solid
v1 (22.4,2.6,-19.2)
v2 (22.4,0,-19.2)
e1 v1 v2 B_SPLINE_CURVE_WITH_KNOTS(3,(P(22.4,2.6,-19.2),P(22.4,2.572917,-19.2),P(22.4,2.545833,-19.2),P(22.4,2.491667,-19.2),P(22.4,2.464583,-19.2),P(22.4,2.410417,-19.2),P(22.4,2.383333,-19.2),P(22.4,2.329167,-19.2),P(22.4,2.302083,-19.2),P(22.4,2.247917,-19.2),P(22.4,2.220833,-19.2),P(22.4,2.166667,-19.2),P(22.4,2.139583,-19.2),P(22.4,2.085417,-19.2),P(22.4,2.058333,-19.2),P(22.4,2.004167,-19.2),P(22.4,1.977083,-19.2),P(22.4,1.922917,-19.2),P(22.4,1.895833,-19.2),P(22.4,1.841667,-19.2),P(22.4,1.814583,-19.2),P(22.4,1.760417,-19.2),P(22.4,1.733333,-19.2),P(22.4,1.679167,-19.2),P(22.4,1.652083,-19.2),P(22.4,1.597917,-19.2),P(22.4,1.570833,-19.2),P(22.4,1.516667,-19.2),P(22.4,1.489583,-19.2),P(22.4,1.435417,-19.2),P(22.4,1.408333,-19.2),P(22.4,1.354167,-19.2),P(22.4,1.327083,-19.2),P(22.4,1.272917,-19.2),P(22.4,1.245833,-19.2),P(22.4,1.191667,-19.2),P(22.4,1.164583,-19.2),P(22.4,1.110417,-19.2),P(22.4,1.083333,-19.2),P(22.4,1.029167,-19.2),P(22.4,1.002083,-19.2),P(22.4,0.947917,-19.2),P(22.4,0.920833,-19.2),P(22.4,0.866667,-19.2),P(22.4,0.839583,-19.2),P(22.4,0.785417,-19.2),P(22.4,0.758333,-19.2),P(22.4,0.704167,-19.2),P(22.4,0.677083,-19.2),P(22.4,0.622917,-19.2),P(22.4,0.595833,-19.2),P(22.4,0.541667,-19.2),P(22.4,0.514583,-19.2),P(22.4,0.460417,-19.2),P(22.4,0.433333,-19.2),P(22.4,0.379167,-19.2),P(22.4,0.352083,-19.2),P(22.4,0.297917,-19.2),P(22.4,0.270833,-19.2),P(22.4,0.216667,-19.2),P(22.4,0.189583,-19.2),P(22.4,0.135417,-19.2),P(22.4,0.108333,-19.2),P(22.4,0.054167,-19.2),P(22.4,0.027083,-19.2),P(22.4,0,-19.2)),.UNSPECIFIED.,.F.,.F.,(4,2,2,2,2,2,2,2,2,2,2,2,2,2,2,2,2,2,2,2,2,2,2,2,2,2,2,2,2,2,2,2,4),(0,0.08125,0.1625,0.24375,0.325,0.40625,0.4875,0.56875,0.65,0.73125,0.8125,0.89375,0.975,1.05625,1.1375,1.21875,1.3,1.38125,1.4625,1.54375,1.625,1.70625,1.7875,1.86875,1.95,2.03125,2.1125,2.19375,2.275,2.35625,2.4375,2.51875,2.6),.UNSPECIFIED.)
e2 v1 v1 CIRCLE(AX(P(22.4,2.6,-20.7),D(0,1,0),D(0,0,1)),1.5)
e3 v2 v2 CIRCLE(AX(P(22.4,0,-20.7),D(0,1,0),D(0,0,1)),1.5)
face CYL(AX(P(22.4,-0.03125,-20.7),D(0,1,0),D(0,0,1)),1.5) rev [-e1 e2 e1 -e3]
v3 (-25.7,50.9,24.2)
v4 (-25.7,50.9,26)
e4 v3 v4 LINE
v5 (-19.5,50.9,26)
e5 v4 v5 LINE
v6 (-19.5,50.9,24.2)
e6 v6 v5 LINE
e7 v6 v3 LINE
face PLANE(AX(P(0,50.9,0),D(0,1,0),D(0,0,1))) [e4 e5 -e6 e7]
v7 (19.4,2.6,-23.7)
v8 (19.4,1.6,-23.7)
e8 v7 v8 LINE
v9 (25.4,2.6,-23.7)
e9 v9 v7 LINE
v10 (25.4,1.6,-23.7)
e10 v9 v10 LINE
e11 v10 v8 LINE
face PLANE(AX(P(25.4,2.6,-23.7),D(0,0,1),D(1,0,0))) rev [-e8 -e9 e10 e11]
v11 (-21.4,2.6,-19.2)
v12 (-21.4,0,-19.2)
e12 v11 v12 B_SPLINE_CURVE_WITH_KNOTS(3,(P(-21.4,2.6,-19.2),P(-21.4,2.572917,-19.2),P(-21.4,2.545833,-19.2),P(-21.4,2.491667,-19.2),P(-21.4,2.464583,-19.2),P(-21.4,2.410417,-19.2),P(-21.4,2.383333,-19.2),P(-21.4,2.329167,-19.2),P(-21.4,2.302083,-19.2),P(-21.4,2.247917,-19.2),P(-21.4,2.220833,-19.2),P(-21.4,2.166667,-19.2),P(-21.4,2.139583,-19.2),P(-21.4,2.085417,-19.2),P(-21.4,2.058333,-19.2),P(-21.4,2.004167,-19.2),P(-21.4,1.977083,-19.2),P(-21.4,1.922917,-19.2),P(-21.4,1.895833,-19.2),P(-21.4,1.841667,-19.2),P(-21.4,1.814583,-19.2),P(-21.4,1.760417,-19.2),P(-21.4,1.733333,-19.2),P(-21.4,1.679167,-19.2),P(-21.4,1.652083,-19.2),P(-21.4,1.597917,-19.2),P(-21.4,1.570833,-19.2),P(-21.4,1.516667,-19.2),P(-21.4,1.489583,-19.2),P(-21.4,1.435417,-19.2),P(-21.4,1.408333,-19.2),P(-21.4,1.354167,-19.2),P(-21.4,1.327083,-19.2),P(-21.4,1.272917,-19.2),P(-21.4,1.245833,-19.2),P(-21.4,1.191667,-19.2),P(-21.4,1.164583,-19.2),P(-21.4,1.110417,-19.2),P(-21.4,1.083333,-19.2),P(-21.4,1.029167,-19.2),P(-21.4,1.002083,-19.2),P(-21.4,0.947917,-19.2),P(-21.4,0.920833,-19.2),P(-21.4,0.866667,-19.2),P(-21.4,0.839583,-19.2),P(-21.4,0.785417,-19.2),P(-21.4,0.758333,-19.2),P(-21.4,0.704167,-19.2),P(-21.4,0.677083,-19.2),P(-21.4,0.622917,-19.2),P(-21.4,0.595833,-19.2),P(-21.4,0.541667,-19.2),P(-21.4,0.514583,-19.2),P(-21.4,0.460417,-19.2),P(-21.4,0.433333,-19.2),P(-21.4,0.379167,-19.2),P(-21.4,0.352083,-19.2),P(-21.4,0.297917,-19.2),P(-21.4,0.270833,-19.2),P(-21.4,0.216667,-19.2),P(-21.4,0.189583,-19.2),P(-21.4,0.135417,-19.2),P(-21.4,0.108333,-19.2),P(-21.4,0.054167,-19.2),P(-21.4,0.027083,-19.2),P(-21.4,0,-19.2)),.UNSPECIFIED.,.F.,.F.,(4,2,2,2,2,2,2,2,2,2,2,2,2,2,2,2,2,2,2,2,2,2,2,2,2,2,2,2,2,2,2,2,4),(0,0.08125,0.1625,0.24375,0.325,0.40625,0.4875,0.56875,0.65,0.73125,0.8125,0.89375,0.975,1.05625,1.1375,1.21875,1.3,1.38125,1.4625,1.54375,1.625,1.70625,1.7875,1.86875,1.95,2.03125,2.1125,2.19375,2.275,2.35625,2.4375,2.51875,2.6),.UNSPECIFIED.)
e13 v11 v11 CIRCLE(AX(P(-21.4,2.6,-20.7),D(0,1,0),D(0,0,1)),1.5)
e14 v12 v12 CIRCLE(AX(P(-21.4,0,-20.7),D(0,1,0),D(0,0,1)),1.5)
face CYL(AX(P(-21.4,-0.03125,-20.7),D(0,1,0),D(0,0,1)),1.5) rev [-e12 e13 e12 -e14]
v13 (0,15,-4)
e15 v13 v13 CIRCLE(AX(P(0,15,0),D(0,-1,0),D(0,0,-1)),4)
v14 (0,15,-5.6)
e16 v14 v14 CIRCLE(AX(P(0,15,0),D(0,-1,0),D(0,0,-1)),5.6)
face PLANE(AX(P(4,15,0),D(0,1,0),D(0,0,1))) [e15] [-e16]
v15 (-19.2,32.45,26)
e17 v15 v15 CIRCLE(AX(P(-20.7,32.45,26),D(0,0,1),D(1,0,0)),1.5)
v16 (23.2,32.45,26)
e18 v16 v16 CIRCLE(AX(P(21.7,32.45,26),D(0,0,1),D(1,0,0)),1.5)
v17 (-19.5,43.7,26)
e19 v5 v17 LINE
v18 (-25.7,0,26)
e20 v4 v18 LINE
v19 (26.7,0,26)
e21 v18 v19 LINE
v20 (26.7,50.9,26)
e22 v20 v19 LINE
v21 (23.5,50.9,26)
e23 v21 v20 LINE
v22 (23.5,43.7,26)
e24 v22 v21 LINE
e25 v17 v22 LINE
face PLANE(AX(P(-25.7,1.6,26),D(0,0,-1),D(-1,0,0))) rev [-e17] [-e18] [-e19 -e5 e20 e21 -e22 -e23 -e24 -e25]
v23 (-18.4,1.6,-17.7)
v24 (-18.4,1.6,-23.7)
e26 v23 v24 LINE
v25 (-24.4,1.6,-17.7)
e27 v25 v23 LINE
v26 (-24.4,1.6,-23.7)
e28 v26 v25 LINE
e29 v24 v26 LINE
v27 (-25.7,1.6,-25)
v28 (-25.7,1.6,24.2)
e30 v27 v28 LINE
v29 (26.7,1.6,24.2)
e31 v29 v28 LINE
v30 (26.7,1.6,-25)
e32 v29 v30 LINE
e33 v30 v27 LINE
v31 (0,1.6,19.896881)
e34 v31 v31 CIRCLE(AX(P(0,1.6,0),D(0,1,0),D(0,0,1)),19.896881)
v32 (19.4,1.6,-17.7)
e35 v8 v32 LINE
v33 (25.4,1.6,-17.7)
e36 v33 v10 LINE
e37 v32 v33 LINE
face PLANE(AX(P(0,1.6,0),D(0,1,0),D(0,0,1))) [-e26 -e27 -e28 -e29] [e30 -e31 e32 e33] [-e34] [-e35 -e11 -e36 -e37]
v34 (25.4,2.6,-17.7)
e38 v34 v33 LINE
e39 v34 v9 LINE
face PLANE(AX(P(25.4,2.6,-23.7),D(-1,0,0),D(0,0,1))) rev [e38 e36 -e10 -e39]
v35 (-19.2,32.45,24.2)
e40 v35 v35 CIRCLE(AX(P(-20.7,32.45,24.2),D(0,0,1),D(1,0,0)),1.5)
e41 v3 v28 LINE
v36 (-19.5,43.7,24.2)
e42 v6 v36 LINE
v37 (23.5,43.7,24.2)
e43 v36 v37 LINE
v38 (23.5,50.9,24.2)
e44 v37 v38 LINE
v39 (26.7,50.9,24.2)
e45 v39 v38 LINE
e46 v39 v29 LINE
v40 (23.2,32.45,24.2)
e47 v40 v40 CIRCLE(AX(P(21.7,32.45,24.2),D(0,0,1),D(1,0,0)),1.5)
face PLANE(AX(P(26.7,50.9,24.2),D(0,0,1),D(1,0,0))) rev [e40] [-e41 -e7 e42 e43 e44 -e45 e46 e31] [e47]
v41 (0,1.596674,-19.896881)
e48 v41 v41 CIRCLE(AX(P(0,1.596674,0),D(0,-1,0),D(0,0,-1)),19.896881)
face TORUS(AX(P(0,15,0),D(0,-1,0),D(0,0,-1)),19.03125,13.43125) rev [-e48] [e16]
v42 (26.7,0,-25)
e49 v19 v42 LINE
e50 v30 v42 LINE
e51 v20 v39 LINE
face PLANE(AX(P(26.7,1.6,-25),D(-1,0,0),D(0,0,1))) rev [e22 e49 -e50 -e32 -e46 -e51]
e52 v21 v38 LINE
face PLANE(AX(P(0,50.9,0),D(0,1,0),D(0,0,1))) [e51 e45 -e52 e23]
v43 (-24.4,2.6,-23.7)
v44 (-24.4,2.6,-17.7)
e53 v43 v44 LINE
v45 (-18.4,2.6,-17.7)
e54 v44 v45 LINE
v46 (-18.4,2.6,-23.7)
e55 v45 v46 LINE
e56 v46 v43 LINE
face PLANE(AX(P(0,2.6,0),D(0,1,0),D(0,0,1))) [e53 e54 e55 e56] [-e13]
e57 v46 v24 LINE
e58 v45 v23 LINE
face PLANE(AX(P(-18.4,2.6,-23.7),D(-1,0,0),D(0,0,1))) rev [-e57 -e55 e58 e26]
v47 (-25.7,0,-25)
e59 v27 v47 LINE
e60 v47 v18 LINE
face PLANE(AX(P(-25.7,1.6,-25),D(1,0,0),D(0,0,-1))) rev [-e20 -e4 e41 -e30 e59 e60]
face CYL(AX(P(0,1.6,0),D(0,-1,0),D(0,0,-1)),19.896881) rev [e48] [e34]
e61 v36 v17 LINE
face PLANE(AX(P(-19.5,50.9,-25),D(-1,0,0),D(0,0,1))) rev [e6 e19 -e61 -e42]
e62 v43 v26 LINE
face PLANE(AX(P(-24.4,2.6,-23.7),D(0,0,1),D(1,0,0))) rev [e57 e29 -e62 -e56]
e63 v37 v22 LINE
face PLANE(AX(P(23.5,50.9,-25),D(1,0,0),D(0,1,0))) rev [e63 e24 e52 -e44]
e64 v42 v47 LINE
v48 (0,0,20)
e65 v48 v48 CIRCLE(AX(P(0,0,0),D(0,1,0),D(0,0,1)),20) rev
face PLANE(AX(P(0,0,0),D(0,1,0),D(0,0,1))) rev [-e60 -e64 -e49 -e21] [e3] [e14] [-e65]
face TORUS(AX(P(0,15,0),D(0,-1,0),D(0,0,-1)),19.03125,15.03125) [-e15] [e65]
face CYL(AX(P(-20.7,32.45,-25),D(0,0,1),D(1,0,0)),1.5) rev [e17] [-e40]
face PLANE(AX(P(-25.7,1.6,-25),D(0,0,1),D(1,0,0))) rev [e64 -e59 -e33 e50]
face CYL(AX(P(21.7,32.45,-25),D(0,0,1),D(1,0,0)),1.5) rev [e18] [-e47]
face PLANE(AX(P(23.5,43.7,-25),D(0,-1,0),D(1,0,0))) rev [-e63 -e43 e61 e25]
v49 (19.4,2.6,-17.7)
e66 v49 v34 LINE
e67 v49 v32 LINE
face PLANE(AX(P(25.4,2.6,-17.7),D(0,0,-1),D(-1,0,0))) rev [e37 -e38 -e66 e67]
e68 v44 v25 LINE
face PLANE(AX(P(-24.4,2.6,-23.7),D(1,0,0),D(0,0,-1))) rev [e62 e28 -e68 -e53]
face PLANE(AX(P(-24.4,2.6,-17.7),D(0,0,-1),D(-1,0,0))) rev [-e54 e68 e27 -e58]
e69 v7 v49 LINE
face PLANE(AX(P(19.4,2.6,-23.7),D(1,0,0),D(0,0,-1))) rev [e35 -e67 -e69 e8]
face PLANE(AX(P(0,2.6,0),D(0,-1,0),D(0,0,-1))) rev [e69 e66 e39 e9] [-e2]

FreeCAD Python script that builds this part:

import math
import FreeCAD as App
import Part
import Sketcher

doc = App.newDocument("Part")
params = doc.addObject("Spreadsheet::Sheet", "Params")
for row, (alias, value) in enumerate([
    ("sketch1_width", "1.6 mm"),
    ("revolution_angle", "360 deg"),
    ("sketch2_height", "51 mm"),
    ("sketch2_width", "52.4 mm"),
    ("pad1_length", "1.6 mm"),
    ("sketch3_width", "52.4 mm"),
    ("sketch3_height", "1.8 mm"),
    ("pad2_length", "49.3 mm"),
    ("sketch4_width", "6 mm"),
    ("pad3_length", "1 mm"),
    ("sketch5_diameter", "3 mm"),
    ("sketch6_diameter", "3 mm"),
    ("sketch6_width", "43 mm"),
    ("sketch6_height", "7.2 mm"),
], start=1):
    params.set(f"A{row}", alias)
    params.set(f"B{row}", "=" + value)
    params.setAlias(f"B{row}", alias)

body = doc.addObject("PartDesign::Body", "Body")

# Sketch on XY plane
sketch1 = body.newObject("Sketcher::SketchObject", "Sketch")
sketch1.AttachmentSupport = (doc.getObject("XY_Plane"), [""])
sketch1.MapMode = "FlatFace"
sketch1.addGeometry([
    Part.LineSegment(App.Vector(5.6, 15, 0), App.Vector(4, 15, 0)),
    Part.ArcOfCircle(Part.Circle(App.Vector(19.03125, 15, 0), App.Vector(0, 0, 1), 15.03125), math.radians(180), math.radians(273.695221)),
    Part.LineSegment(App.Vector(20, 0, 0), App.Vector(19.896881, 1.596674, 0)),
    Part.ArcOfCircle(Part.Circle(App.Vector(19.03125, 15, 0), App.Vector(0, 0, 1), 13.43125), math.radians(180), math.radians(273.695221)),
], False)
sketch1.addConstraint([
    Sketcher.Constraint("Coincident", 0, 2, 1, 1),
    Sketcher.Constraint("Coincident", 1, 2, 2, 1),
    Sketcher.Constraint("Coincident", 2, 2, 3, 2),
    Sketcher.Constraint("Coincident", 3, 1, 0, 1),
    Sketcher.Constraint("Horizontal", 0),
    Sketcher.Constraint("Coincident", 3, 3, 1, 3),
    Sketcher.Constraint("PointOnObject", 1, 2, -1),
    Sketcher.Constraint("Horizontal", 3, 3, 0, 2),
    Sketcher.Constraint("DistanceX", 0, 2, 0, 1, 1.6),
    Sketcher.Constraint("DistanceY", -1, 1, 1, 3, 15.0),
    Sketcher.Constraint("DistanceX", -1, 1, 0, 2, 4.0),
    Sketcher.Constraint("DistanceX", -1, 1, 1, 2, 20.0),
    Sketcher.Constraint("DistanceX", -1, 1, 2, 2, 19.896881),
])
sketch1.setExpression("Constraints[8]", "Params.sketch1_width")
revolution = body.newObject("PartDesign::Revolution", "Revolution")
revolution.Profile = sketch1
revolution.ReferenceAxis = (sketch1, ["V_Axis"])
revolution.setExpression("Angle", "Params.revolution_angle")

# Sketch on XZ plane
sketch2 = body.newObject("Sketcher::SketchObject", "Sketch001")
sketch2.AttachmentSupport = (doc.getObject("XZ_Plane"), [""])
sketch2.MapMode = "FlatFace"
sketch2.addGeometry([
    Part.LineSegment(App.Vector(-25.7, -25, 0), App.Vector(-25.7, 26, 0)),  # 0
    Part.LineSegment(App.Vector(-25.7, 26, 0), App.Vector(26.7, 26, 0)),  # 1
    Part.LineSegment(App.Vector(26.7, 26, 0), App.Vector(26.7, -25, 0)),  # 2
    Part.LineSegment(App.Vector(26.7, -25, 0), App.Vector(-25.7, -25, 0)),  # 3
    Part.Circle(App.Vector(0, 0, 0), App.Vector(0, 0, 1), 19.896881),  # 4
], False)
sketch2.addConstraint([
    Sketcher.Constraint("Coincident", 0, 2, 1, 1),
    Sketcher.Constraint("Coincident", 1, 2, 2, 1),
    Sketcher.Constraint("Coincident", 2, 2, 3, 1),
    Sketcher.Constraint("Coincident", 3, 2, 0, 1),
    Sketcher.Constraint("Vertical", 0),
    Sketcher.Constraint("Horizontal", 1),
    Sketcher.Constraint("Vertical", 2),
    Sketcher.Constraint("Horizontal", 3),
    Sketcher.Constraint("Coincident", 4, 3, -1, 1),
    Sketcher.Constraint("DistanceY", 0, 1, 0, 2, 51.0),
    Sketcher.Constraint("DistanceX", 1, 1, 1, 2, 52.4),
    Sketcher.Constraint("DistanceY", -1, 1, 0, 2, 26.0),
    Sketcher.Constraint("DistanceX", 0, 2, -1, 1, 25.7),
    Sketcher.Constraint("Diameter", 4, 39.793763),
])
sketch2.setExpression("Constraints[9]", "Params.sketch2_height")
sketch2.setExpression("Constraints[10]", "Params.sketch2_width")
pad1 = body.newObject("PartDesign::Pad", "Pad")
pad1.Profile = sketch2
pad1.setExpression("Length", "Params.pad1_length")
pad1.Reversed = True

# Sketch on XZ plane
sketch3 = body.newObject("Sketcher::SketchObject", "Sketch002")
sketch3.AttachmentSupport = (doc.getObject("XZ_Plane"), [""])
sketch3.MapMode = "FlatFace"
sketch3.AttachmentOffset = App.Placement(App.Vector(0, 0, -1.6), App.Rotation())
sketch3.addGeometry([
    Part.LineSegment(App.Vector(-25.7, 24.2, 0), App.Vector(-25.7, 26, 0)),
    Part.LineSegment(App.Vector(-25.7, 26, 0), App.Vector(26.7, 26, 0)),
    Part.LineSegment(App.Vector(26.7, 26, 0), App.Vector(26.7, 24.2, 0)),
    Part.LineSegment(App.Vector(26.7, 24.2, 0), App.Vector(-25.7, 24.2, 0)),
], False)
sketch3.addConstraint([
    Sketcher.Constraint("Coincident", 0, 2, 1, 1),
    Sketcher.Constraint("Coincident", 1, 2, 2, 1),
    Sketcher.Constraint("Coincident", 2, 2, 3, 1),
    Sketcher.Constraint("Coincident", 3, 2, 0, 1),
    Sketcher.Constraint("Vertical", 0),
    Sketcher.Constraint("Horizontal", 1),
    Sketcher.Constraint("Vertical", 2),
    Sketcher.Constraint("Horizontal", 3),
    Sketcher.Constraint("DistanceX", 1, 1, 1, 2, 52.4),
    Sketcher.Constraint("DistanceY", 0, 1, 0, 2, 1.8),
    Sketcher.Constraint("DistanceY", -1, 1, 0, 2, 26.0),
    Sketcher.Constraint("DistanceX", 0, 2, -1, 1, 25.7),
])
sketch3.setExpression("Constraints[8]", "Params.sketch3_width")
sketch3.setExpression("Constraints[9]", "Params.sketch3_height")
pad2 = body.newObject("PartDesign::Pad", "Pad001")
pad2.Profile = sketch3
pad2.setExpression("Length", "Params.pad2_length")
pad2.Reversed = True

# Sketch on XZ plane
sketch4 = body.newObject("Sketcher::SketchObject", "Sketch003")
sketch4.AttachmentSupport = (doc.getObject("XZ_Plane"), [""])
sketch4.MapMode = "FlatFace"
sketch4.AttachmentOffset = App.Placement(App.Vector(0, 0, -1.6), App.Rotation())
sketch4.addGeometry([
    Part.LineSegment(App.Vector(19.4, -23.7, 0), App.Vector(19.4, -17.7, 0)),  # 0
    Part.LineSegment(App.Vector(19.4, -17.7, 0), App.Vector(25.4, -17.7, 0)),  # 1
    Part.LineSegment(App.Vector(25.4, -17.7, 0), App.Vector(25.4, -23.7, 0)),  # 2
    Part.LineSegment(App.Vector(25.4, -23.7, 0), App.Vector(19.4, -23.7, 0)),  # 3
    Part.LineSegment(App.Vector(-24.4, -23.7, 0), App.Vector(-24.4, -17.7, 0)),  # 4
    Part.LineSegment(App.Vector(-24.4, -17.7, 0), App.Vector(-18.4, -17.7, 0)),  # 5
    Part.LineSegment(App.Vector(-18.4, -17.7, 0), App.Vector(-18.4, -23.7, 0)),  # 6
    Part.LineSegment(App.Vector(-18.4, -23.7, 0), App.Vector(-24.4, -23.7, 0)),  # 7
], False)
sketch4.addConstraint([
    Sketcher.Constraint("Coincident", 0, 2, 1, 1),
    Sketcher.Constraint("Coincident", 1, 2, 2, 1),
    Sketcher.Constraint("Coincident", 2, 2, 3, 1),
    Sketcher.Constraint("Coincident", 3, 2, 0, 1),
    Sketcher.Constraint("Coincident", 4, 2, 5, 1),
    Sketcher.Constraint("Coincident", 5, 2, 6, 1),
    Sketcher.Constraint("Coincident", 6, 2, 7, 1),
    Sketcher.Constraint("Coincident", 7, 2, 4, 1),
    Sketcher.Constraint("Vertical", 0),
    Sketcher.Constraint("Horizontal", 1),
    Sketcher.Constraint("Vertical", 2),
    Sketcher.Constraint("Horizontal", 3),
    Sketcher.Constraint("Vertical", 4),
    Sketcher.Constraint("Horizontal", 5),
    Sketcher.Constraint("Vertical", 6),
    Sketcher.Constraint("Horizontal", 7),
    Sketcher.Constraint("Horizontal", 1, 2, 4, 2),
    Sketcher.Constraint("Horizontal", 3, 2, 6, 2),
    Sketcher.Constraint("Equal", 3, 5),
    Sketcher.Constraint("Equal", 7, 0),
    Sketcher.Constraint("DistanceX", 1, 1, 1, 2, 6.0),
    Sketcher.Constraint("DistanceX", -1, 1, 0, 2, 19.4),
    Sketcher.Constraint("DistanceY", 0, 2, -1, 1, 17.7),
    Sketcher.Constraint("DistanceX", 4, 2, -1, 1, 24.4),
])
sketch4.setExpression("Constraints[20]", "Params.sketch4_width")
pad3 = body.newObject("PartDesign::Pad", "Pad002")
pad3.Profile = sketch4
pad3.setExpression("Length", "Params.pad3_length")
pad3.Reversed = True

# Sketch on XZ plane
sketch5 = body.newObject("Sketcher::SketchObject", "Sketch004")
sketch5.AttachmentSupport = (doc.getObject("XZ_Plane"), [""])
sketch5.MapMode = "FlatFace"
sketch5.AttachmentOffset = App.Placement(App.Vector(0, 0, -2.6), App.Rotation())
sketch5.addGeometry([
    Part.Circle(App.Vector(22.4, -20.7, 0), App.Vector(0, 0, 1), 1.5),
    Part.Circle(App.Vector(-21.4, -20.7, 0), App.Vector(0, 0, 1), 1.5),
], False)
sketch5.addConstraint([
    Sketcher.Constraint("Equal", 0, 1),
    Sketcher.Constraint("Horizontal", 0, 3, 1, 3),
    Sketcher.Constraint("Diameter", 0, 3.0),
    Sketcher.Constraint("DistanceX", -1, 1, 0, 3, 22.4),
    Sketcher.Constraint("DistanceY", 0, 3, -1, 1, 20.7),
    Sketcher.Constraint("DistanceX", 1, 3, -1, 1, 21.4),
])
sketch5.setExpression("Constraints[2]", "Params.sketch5_diameter")
pocket1 = body.newObject("PartDesign::Pocket", "Pocket")
pocket1.Profile = sketch5
pocket1.Type = "ThroughAll"
pocket1.Reversed = True

# Sketch on XY plane
sketch6 = body.newObject("Sketcher::SketchObject", "Sketch005")
sketch6.AttachmentSupport = (doc.getObject("XY_Plane"), [""])
sketch6.MapMode = "FlatFace"
sketch6.AttachmentOffset = App.Placement(App.Vector(0, 0, 26), App.Rotation())
sketch6.addGeometry([
    Part.Circle(App.Vector(-20.7, 32.45, 0), App.Vector(0, 0, 1), 1.5),  # 0
    Part.Circle(App.Vector(21.7, 32.45, 0), App.Vector(0, 0, 1), 1.5),  # 1
    Part.LineSegment(App.Vector(-19.5, 50.9, 0), App.Vector(-19.5, 43.7, 0)),  # 2
    Part.LineSegment(App.Vector(-19.5, 43.7, 0), App.Vector(23.5, 43.7, 0)),  # 3
    Part.LineSegment(App.Vector(23.5, 43.7, 0), App.Vector(23.5, 50.9, 0)),  # 4
    Part.LineSegment(App.Vector(23.5, 50.9, 0), App.Vector(-19.5, 50.9, 0)),  # 5
], False)
sketch6.addConstraint([
    Sketcher.Constraint("Coincident", 2, 2, 3, 1),
    Sketcher.Constraint("Coincident", 3, 2, 4, 1),
    Sketcher.Constraint("Coincident", 4, 2, 5, 1),
    Sketcher.Constraint("Coincident", 5, 2, 2, 1),
    Sketcher.Constraint("Vertical", 2),
    Sketcher.Constraint("Horizontal", 3),
    Sketcher.Constraint("Vertical", 4),
    Sketcher.Constraint("Horizontal", 5),
    Sketcher.Constraint("Equal", 0, 1),
    Sketcher.Constraint("Horizontal", 0, 3, 1, 3),
    Sketcher.Constraint("Diameter", 0, 3.0),
    Sketcher.Constraint("DistanceX", 3, 1, 3, 2, 43.0),
    Sketcher.Constraint("DistanceY", 2, 2, 2, 1, 7.2),
    Sketcher.Constraint("DistanceX", 0, 3, -1, 1, 20.7),
    Sketcher.Constraint("DistanceX", -1, 1, 1, 3, 21.7),
    Sketcher.Constraint("DistanceX", 2, 2, -1, 1, 19.5),
    Sketcher.Constraint("DistanceY", -1, 1, 2, 2, 43.7),
    Sketcher.Constraint("DistanceY", -1, 1, 0, 3, 32.45),
])
sketch6.setExpression("Constraints[10]", "Params.sketch6_diameter")
sketch6.setExpression("Constraints[11]", "Params.sketch6_width")
sketch6.setExpression("Constraints[12]", "Params.sketch6_height")
pocket2 = body.newObject("PartDesign::Pocket", "Pocket001")
pocket2.Profile = sketch6
pocket2.Type = "ThroughAll"

doc.recompute()
